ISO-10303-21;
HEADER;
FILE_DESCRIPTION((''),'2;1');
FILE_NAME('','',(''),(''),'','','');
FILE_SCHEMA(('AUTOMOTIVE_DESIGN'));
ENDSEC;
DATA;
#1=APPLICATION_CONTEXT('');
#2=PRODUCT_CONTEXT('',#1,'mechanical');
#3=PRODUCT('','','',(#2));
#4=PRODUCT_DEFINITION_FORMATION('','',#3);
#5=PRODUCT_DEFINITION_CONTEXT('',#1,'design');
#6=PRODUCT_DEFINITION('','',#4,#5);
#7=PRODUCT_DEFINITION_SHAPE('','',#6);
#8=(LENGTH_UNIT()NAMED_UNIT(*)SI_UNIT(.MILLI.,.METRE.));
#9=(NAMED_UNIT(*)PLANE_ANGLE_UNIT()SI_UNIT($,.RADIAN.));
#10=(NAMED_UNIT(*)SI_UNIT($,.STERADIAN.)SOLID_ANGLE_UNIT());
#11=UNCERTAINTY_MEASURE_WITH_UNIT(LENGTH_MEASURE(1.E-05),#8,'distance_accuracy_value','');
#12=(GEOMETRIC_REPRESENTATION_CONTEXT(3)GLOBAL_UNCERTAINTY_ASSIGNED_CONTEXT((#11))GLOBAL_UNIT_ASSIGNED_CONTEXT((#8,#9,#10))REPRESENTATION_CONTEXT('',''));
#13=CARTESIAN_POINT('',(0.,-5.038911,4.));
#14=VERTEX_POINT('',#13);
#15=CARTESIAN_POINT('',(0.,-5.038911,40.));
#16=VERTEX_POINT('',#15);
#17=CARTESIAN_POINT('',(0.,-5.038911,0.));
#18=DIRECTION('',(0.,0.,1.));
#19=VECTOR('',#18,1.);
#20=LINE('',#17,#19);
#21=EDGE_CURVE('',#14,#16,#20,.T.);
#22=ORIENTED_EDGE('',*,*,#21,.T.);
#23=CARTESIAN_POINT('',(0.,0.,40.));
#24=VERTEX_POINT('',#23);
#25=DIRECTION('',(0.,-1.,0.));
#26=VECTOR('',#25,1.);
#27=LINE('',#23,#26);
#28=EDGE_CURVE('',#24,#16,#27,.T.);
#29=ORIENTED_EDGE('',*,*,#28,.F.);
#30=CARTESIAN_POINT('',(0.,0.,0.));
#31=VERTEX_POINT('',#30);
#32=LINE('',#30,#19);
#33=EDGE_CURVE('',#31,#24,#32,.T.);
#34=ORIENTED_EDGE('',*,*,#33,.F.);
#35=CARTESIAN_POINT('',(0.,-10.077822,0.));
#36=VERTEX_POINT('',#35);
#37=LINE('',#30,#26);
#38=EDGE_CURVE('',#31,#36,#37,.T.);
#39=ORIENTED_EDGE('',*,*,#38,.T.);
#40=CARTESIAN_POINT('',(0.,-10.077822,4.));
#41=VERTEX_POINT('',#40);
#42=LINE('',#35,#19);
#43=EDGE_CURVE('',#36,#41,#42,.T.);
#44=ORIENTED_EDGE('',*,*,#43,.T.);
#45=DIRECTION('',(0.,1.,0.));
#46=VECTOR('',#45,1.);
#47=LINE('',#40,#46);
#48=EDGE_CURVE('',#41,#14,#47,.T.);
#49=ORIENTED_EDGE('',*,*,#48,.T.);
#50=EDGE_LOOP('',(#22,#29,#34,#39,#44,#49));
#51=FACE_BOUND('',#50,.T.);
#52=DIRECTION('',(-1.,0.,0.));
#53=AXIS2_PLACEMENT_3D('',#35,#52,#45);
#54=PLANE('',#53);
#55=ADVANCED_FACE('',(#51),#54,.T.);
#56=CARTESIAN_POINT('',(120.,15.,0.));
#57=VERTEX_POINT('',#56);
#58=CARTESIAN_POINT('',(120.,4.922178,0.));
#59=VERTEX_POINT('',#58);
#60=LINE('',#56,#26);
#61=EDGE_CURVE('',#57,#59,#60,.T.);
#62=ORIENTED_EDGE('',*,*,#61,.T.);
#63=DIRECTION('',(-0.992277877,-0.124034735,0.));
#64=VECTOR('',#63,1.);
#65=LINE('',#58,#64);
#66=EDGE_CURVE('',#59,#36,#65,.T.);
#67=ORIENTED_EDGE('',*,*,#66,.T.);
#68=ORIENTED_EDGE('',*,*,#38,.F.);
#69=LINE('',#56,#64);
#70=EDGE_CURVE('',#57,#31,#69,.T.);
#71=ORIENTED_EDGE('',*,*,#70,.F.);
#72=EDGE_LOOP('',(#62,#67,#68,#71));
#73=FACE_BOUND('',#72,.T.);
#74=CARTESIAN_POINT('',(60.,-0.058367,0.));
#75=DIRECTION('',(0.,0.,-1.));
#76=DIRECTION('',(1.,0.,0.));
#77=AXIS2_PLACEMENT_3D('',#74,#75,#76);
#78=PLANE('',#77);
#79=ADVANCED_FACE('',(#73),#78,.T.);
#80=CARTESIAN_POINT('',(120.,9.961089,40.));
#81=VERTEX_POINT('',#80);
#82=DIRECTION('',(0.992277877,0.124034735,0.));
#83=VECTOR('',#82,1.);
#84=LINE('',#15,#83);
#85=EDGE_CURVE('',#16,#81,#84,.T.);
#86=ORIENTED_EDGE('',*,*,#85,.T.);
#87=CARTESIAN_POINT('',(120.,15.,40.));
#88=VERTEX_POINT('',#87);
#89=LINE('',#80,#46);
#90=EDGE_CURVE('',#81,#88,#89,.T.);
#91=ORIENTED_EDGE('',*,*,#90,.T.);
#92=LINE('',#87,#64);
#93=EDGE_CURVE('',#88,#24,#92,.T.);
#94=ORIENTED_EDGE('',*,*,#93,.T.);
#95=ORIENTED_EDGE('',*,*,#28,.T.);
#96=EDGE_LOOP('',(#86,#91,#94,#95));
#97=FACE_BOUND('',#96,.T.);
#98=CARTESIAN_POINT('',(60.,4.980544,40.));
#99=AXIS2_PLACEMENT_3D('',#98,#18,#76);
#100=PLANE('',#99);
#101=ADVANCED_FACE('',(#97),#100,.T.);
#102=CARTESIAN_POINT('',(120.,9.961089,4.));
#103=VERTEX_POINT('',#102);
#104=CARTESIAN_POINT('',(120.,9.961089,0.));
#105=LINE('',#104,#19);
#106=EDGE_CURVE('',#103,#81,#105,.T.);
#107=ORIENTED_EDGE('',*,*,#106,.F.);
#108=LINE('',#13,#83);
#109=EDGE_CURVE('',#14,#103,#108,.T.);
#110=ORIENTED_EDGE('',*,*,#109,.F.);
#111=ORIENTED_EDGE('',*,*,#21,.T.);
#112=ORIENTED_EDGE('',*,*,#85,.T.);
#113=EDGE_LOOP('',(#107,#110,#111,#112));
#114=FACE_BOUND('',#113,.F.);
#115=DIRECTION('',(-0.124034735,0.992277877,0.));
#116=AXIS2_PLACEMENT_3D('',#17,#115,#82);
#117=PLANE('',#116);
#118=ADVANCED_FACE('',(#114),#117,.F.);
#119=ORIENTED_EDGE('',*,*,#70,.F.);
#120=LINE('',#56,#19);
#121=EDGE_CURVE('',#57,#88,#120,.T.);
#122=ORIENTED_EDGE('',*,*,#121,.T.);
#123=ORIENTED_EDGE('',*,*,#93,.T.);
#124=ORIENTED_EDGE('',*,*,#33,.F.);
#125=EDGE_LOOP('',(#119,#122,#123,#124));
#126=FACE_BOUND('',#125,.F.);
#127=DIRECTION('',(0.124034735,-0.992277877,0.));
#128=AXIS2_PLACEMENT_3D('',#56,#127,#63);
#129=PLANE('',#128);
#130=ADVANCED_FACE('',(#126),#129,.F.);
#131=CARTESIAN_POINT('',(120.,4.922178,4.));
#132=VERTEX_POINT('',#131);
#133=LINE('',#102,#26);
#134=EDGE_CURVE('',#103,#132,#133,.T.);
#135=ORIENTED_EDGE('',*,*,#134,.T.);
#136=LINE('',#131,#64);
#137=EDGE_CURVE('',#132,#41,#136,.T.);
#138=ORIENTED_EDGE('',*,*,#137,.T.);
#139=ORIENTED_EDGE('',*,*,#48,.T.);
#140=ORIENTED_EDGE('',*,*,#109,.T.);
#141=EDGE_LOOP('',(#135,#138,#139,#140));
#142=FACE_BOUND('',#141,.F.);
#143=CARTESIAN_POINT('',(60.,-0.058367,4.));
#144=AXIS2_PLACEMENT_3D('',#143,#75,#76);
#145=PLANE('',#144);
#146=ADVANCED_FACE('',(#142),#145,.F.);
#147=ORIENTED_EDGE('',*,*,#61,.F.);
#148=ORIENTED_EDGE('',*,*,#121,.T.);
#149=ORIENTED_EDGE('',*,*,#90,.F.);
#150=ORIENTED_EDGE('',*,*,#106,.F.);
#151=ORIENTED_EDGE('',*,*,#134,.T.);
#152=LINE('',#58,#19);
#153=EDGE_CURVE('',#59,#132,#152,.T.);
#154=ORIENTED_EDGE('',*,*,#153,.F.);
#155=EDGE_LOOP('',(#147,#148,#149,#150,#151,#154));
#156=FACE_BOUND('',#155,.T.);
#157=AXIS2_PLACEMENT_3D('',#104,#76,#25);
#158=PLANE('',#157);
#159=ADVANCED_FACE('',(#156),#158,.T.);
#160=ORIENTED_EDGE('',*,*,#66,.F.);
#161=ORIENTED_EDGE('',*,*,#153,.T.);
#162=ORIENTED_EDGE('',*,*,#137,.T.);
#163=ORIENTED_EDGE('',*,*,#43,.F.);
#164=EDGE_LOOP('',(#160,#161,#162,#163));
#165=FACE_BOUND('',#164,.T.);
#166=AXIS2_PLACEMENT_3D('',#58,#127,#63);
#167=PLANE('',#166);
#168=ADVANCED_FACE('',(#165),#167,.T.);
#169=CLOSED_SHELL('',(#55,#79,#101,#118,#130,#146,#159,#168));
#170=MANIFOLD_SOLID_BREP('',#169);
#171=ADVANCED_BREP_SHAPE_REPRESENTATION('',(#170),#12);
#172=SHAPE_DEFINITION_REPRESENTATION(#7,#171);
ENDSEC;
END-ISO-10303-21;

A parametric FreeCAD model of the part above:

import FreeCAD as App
import Part
import Sketcher

V = App.Vector
Q = App.Units.Quantity


def add_polygon(sketch, points):
    """Adds a closed chain of lines whose ends are joined by coincident constraints."""
    first, n = sketch.GeometryCount, len(points)
    for a, b in zip(points, points[1:] + points[:1]):
        sketch.addGeometry(Part.LineSegment(App.Vector(*a, 0), App.Vector(*b, 0)), False)
    for i in range(n):
        sketch.addConstraint(Sketcher.Constraint("Coincident", first + i, 2, first + (i + 1) % n, 1))

doc = App.newDocument("Part")
body = doc.addObject("PartDesign::Body", "Body")

# Sketch on XY plane
sketch1 = body.newObject("Sketcher::SketchObject", "Sketch")
sketch1.AttachmentSupport = (doc.getObject("XY_Plane"), [""])
sketch1.MapMode = "FlatFace"
add_polygon(sketch1, [(120, 10), (120, 15), (0, 0), (0, -5)])  # lines 0-3
sketch1.addConstraint([
    Sketcher.Constraint("Vertical", 0),
    Sketcher.Constraint("Vertical", 2),
    Sketcher.Constraint("Coincident", 1, 2, -1, 1),
    Sketcher.Constraint("Parallel", 1, 3),
    Sketcher.Constraint("DistanceX", -1, 1, 0, 2, Q("120 mm")),
    Sketcher.Constraint("DistanceY", -1, 1, 0, 2, Q("15 mm")),
    Sketcher.Constraint("DistanceY", 0, 1, 0, 2, Q("5.038911 mm")),
])
pad1 = body.newObject("PartDesign::Pad", "Pad")
pad1.Profile = sketch1
pad1.Length = 40

# Sketch on XY plane
sketch2 = body.newObject("Sketcher::SketchObject", "Sketch001")
sketch2.AttachmentSupport = (doc.getObject("XY_Plane"), [""])
sketch2.MapMode = "FlatFace"
add_polygon(sketch2, [(0, -10), (0, -5), (120, 10), (120, 5)])  # lines 0-3
sketch2.addConstraint([
    Sketcher.Constraint("Vertical", 0),
    Sketcher.Constraint("Vertical", 2),
    Sketcher.Constraint("PointOnObject", 0, 2, -2),
    Sketcher.Constraint("Parallel", 1, 3),
    Sketcher.Constraint("DistanceX", -1, 1, 1, 2, Q("120 mm")),
    Sketcher.Constraint("DistanceY", 0, 2, 1, 2, Q("15 mm")),
    Sketcher.Constraint("DistanceY", 0, 1, 0, 2, Q("5.038911 mm")),
    Sketcher.Constraint("DistanceY", 0, 2, -1, 1, Q("5.038911 mm")),
])
pad2 = body.newObject("PartDesign::Pad", "Pad001")
pad2.Profile = sketch2
pad2.Length = 4

doc.recompute()
